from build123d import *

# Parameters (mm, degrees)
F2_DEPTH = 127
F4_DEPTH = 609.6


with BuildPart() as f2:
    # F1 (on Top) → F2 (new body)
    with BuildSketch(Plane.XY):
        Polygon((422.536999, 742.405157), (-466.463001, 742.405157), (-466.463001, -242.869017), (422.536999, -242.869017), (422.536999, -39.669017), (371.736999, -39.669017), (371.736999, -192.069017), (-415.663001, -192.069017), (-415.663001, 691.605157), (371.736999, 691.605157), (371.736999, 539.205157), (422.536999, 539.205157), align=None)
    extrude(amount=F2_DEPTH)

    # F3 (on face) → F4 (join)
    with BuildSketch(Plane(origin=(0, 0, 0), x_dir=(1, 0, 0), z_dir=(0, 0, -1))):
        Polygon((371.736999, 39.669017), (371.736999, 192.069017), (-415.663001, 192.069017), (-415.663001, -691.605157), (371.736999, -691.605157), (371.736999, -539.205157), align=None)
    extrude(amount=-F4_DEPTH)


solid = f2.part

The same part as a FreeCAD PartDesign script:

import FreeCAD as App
import Part
import Sketcher
from FreeCAD import Vector
Q = App.Units.Quantity

doc = App.newDocument("Part")
params = doc.addObject("Spreadsheet::Sheet", "Params")
for row, (alias, value) in enumerate([
    ("sketch1_width", "35 in"),
    ("sketch1_width2", "2 in"),
    ("sketch1_width3", "31 in"),
    ("sketch1_height", "8 in"),
    ("sketch1_height2", "6 in"),
    ("pad1_length", "5 in"),
    ("sketch2_width", "31 in"),
    ("pad2_length", "24 in"),
], start=1):
    params.set(f"A{row}", alias)
    params.set(f"B{row}", "=" + value)
    params.setAlias(f"B{row}", alias)

body = doc.addObject("PartDesign::Body", "Body")

# Sketch on XY plane
sketch1 = doc.addObject("Sketcher::SketchObject", "Sketch")
body.addObject(sketch1)
sketch1.AttachmentSupport = (doc.XY_Plane, [""])
sketch1.MapMode = "FlatFace"
sketch1.addGeometry([
    Part.LineSegment(Vector(422.536999, 742.405157, 0), Vector(-466.463001, 742.405157, 0)),  # 0
    Part.LineSegment(Vector(-466.463001, 742.405157, 0), Vector(-466.463001, -242.869017, 0)),  # 1
    Part.LineSegment(Vector(-466.463001, -242.869017, 0), Vector(422.536999, -242.869017, 0)),  # 2
    Part.LineSegment(Vector(422.536999, -242.869017, 0), Vector(422.536999, -39.669017, 0)),  # 3
    Part.LineSegment(Vector(422.536999, -39.669017, 0), Vector(371.736999, -39.669017, 0)),  # 4
    Part.LineSegment(Vector(371.736999, -39.669017, 0), Vector(371.736999, -192.069017, 0)),  # 5
    Part.LineSegment(Vector(371.736999, -192.069017, 0), Vector(-415.663001, -192.069017, 0)),  # 6
    Part.LineSegment(Vector(-415.663001, -192.069017, 0), Vector(-415.663001, 691.605157, 0)),  # 7
    Part.LineSegment(Vector(-415.663001, 691.605157, 0), Vector(371.736999, 691.605157, 0)),  # 8
    Part.LineSegment(Vector(371.736999, 691.605157, 0), Vector(371.736999, 539.205157, 0)),  # 9
    Part.LineSegment(Vector(371.736999, 539.205157, 0), Vector(422.536999, 539.205157, 0)),  # 10
    Part.LineSegment(Vector(422.536999, 539.205157, 0), Vector(422.536999, 742.405157, 0)),  # 11
], False)
sketch1.addConstraint([
    Sketcher.Constraint("Coincident", 0, 2, 1, 1),
    Sketcher.Constraint("Coincident", 1, 2, 2, 1),
    Sketcher.Constraint("Coincident", 2, 2, 3, 1),
    Sketcher.Constraint("Coincident", 3, 2, 4, 1),
    Sketcher.Constraint("Coincident", 4, 2, 5, 1),
    Sketcher.Constraint("Coincident", 5, 2, 6, 1),
    Sketcher.Constraint("Coincident", 6, 2, 7, 1),
    Sketcher.Constraint("Coincident", 7, 2, 8, 1),
    Sketcher.Constraint("Coincident", 8, 2, 9, 1),
    Sketcher.Constraint("Coincident", 9, 2, 10, 1),
    Sketcher.Constraint("Coincident", 10, 2, 11, 1),
    Sketcher.Constraint("Coincident", 11, 2, 0, 1),
    Sketcher.Constraint("Horizontal", 0),
    Sketcher.Constraint("Vertical", 1),
    Sketcher.Constraint("Horizontal", 2),
    Sketcher.Constraint("Vertical", 3),
    Sketcher.Constraint("Horizontal", 4),
    Sketcher.Constraint("Vertical", 5),
    Sketcher.Constraint("Horizontal", 6),
    Sketcher.Constraint("Vertical", 7),
    Sketcher.Constraint("Horizontal", 8),
    Sketcher.Constraint("Vertical", 9),
    Sketcher.Constraint("Horizontal", 10),
    Sketcher.Constraint("Vertical", 11),
    Sketcher.Constraint("Vertical", 5, 2, 8, 2),
    Sketcher.Constraint("Vertical", 3, 2, 10, 2),
    Sketcher.Constraint("Equal", 5, 9),
    Sketcher.Constraint("Equal", 3, 11),
    Sketcher.Constraint("DistanceX", 0, 2, 0, 1, Q("35 in")),
    Sketcher.Constraint("DistanceX", 4, 2, 4, 1, Q("2 in")),
    Sketcher.Constraint("DistanceX", 6, 2, 6, 1, Q("31 in")),
    Sketcher.Constraint("DistanceY", 3, 1, 3, 2, Q("8 in")),
    Sketcher.Constraint("DistanceY", 5, 2, 5, 1, Q("6 in")),
    Sketcher.Constraint("DistanceX", 0, 2, -1, 1, Q("466.463001 mm")),
    Sketcher.Constraint("DistanceY", 1, 2, 1, 1, Q("985.274174 mm")),
    Sketcher.Constraint("DistanceY", -1, 1, 0, 2, Q("742.405157 mm")),
])
sketch1.setExpression("Constraints[28]", "Params.sketch1_width")
sketch1.setExpression("Constraints[29]", "Params.sketch1_width2")
sketch1.setExpression("Constraints[30]", "Params.sketch1_width3")
sketch1.setExpression("Constraints[31]", "Params.sketch1_height")
sketch1.setExpression("Constraints[32]", "Params.sketch1_height2")
pad1 = doc.addObject("PartDesign::Pad", "Pad")
body.addObject(pad1)
pad1.Profile = sketch1
pad1.setExpression("Length", "Params.pad1_length")

# Sketch on XY plane
sketch2 = doc.addObject("Sketcher::SketchObject", "Sketch001")
body.addObject(sketch2)
sketch2.AttachmentSupport = (doc.XY_Plane, [""])
sketch2.MapMode = "FlatFace"
sketch2.addGeometry([
    Part.LineSegment(Vector(371.736999, -192.069017, 0), Vector(-415.663001, -192.069017, 0)),
    Part.LineSegment(Vector(-415.663001, -192.069017, 0), Vector(-415.663001, 691.605157, 0)),
    Part.LineSegment(Vector(-415.663001, 691.605157, 0), Vector(371.736999, 691.605157, 0)),
    Part.LineSegment(Vector(371.736999, 691.605157, 0), Vector(371.736999, -192.069017, 0)),
], False)
sketch2.addConstraint([
    Sketcher.Constraint("Coincident", 0, 2, 1, 1),
    Sketcher.Constraint("Coincident", 1, 2, 2, 1),
    Sketcher.Constraint("Coincident", 2, 2, 3, 1),
    Sketcher.Constraint("Coincident", 3, 2, 0, 1),
    Sketcher.Constraint("Horizontal", 0),
    Sketcher.Constraint("Vertical", 1),
    Sketcher.Constraint("Horizontal", 2),
    Sketcher.Constraint("Vertical", 3),
    Sketcher.Constraint("DistanceX", 0, 2, 0, 1, Q("31 in")),
    Sketcher.Constraint("DistanceX", 0, 2, -1, 1, Q("415.663001 mm")),
    Sketcher.Constraint("DistanceY", 1, 1, 1, 2, Q("883.674174 mm")),
    Sketcher.Constraint("DistanceY", 0, 2, -1, 1, Q("192.069017 mm")),
])
sketch2.setExpression("Constraints[8]", "Params.sketch2_width")
pad2 = doc.addObject("PartDesign::Pad", "Pad001")
body.addObject(pad2)
pad2.Profile = sketch2
pad2.setExpression("Length", "Params.pad2_length")

doc.recompute()
